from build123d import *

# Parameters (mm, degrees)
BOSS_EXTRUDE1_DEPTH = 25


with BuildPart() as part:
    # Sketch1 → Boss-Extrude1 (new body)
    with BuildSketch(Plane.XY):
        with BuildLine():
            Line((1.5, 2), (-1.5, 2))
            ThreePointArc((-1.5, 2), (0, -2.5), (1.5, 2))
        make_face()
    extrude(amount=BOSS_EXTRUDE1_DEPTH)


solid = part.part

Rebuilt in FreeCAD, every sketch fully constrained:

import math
import FreeCAD as App
import Part
import Sketcher

doc = App.newDocument("Part")
body = doc.addObject("PartDesign::Body", "Body")

# Sketch on XY plane
sketch1 = doc.addObject("Sketcher::SketchObject", "Sketch")
body.addObject(sketch1)
sketch1.AttachmentSupport = (doc.XY_Plane, [""])
sketch1.MapMode = "FlatFace"
sketch1.addGeometry([
    Part.LineSegment(App.Vector(1.5, 2, 0), App.Vector(-1.5, 2, 0)),
    Part.ArcOfCircle(Part.Circle(App.Vector(0, 0, 0), App.Vector(0, 0, 1), 2.5), math.radians(127), math.radians(413)),
], False)
sketch1.addConstraint([
    Sketcher.Constraint("Coincident", 0, 1, 1, 2),
    Sketcher.Constraint("Coincident", 1, 1, 0, 2),
    Sketcher.Constraint("Horizontal", 0),
    Sketcher.Constraint("Coincident", 1, 3, -1, 1),
    Sketcher.Constraint("Radius", 1, 2.5),
    Sketcher.Constraint("DistanceX", 0, 2, 0, 1, 3.0),
])
pad1 = doc.addObject("PartDesign::Pad", "Pad")
body.addObject(pad1)
pad1.Profile = sketch1
pad1.Length = 25

doc.recompute()
